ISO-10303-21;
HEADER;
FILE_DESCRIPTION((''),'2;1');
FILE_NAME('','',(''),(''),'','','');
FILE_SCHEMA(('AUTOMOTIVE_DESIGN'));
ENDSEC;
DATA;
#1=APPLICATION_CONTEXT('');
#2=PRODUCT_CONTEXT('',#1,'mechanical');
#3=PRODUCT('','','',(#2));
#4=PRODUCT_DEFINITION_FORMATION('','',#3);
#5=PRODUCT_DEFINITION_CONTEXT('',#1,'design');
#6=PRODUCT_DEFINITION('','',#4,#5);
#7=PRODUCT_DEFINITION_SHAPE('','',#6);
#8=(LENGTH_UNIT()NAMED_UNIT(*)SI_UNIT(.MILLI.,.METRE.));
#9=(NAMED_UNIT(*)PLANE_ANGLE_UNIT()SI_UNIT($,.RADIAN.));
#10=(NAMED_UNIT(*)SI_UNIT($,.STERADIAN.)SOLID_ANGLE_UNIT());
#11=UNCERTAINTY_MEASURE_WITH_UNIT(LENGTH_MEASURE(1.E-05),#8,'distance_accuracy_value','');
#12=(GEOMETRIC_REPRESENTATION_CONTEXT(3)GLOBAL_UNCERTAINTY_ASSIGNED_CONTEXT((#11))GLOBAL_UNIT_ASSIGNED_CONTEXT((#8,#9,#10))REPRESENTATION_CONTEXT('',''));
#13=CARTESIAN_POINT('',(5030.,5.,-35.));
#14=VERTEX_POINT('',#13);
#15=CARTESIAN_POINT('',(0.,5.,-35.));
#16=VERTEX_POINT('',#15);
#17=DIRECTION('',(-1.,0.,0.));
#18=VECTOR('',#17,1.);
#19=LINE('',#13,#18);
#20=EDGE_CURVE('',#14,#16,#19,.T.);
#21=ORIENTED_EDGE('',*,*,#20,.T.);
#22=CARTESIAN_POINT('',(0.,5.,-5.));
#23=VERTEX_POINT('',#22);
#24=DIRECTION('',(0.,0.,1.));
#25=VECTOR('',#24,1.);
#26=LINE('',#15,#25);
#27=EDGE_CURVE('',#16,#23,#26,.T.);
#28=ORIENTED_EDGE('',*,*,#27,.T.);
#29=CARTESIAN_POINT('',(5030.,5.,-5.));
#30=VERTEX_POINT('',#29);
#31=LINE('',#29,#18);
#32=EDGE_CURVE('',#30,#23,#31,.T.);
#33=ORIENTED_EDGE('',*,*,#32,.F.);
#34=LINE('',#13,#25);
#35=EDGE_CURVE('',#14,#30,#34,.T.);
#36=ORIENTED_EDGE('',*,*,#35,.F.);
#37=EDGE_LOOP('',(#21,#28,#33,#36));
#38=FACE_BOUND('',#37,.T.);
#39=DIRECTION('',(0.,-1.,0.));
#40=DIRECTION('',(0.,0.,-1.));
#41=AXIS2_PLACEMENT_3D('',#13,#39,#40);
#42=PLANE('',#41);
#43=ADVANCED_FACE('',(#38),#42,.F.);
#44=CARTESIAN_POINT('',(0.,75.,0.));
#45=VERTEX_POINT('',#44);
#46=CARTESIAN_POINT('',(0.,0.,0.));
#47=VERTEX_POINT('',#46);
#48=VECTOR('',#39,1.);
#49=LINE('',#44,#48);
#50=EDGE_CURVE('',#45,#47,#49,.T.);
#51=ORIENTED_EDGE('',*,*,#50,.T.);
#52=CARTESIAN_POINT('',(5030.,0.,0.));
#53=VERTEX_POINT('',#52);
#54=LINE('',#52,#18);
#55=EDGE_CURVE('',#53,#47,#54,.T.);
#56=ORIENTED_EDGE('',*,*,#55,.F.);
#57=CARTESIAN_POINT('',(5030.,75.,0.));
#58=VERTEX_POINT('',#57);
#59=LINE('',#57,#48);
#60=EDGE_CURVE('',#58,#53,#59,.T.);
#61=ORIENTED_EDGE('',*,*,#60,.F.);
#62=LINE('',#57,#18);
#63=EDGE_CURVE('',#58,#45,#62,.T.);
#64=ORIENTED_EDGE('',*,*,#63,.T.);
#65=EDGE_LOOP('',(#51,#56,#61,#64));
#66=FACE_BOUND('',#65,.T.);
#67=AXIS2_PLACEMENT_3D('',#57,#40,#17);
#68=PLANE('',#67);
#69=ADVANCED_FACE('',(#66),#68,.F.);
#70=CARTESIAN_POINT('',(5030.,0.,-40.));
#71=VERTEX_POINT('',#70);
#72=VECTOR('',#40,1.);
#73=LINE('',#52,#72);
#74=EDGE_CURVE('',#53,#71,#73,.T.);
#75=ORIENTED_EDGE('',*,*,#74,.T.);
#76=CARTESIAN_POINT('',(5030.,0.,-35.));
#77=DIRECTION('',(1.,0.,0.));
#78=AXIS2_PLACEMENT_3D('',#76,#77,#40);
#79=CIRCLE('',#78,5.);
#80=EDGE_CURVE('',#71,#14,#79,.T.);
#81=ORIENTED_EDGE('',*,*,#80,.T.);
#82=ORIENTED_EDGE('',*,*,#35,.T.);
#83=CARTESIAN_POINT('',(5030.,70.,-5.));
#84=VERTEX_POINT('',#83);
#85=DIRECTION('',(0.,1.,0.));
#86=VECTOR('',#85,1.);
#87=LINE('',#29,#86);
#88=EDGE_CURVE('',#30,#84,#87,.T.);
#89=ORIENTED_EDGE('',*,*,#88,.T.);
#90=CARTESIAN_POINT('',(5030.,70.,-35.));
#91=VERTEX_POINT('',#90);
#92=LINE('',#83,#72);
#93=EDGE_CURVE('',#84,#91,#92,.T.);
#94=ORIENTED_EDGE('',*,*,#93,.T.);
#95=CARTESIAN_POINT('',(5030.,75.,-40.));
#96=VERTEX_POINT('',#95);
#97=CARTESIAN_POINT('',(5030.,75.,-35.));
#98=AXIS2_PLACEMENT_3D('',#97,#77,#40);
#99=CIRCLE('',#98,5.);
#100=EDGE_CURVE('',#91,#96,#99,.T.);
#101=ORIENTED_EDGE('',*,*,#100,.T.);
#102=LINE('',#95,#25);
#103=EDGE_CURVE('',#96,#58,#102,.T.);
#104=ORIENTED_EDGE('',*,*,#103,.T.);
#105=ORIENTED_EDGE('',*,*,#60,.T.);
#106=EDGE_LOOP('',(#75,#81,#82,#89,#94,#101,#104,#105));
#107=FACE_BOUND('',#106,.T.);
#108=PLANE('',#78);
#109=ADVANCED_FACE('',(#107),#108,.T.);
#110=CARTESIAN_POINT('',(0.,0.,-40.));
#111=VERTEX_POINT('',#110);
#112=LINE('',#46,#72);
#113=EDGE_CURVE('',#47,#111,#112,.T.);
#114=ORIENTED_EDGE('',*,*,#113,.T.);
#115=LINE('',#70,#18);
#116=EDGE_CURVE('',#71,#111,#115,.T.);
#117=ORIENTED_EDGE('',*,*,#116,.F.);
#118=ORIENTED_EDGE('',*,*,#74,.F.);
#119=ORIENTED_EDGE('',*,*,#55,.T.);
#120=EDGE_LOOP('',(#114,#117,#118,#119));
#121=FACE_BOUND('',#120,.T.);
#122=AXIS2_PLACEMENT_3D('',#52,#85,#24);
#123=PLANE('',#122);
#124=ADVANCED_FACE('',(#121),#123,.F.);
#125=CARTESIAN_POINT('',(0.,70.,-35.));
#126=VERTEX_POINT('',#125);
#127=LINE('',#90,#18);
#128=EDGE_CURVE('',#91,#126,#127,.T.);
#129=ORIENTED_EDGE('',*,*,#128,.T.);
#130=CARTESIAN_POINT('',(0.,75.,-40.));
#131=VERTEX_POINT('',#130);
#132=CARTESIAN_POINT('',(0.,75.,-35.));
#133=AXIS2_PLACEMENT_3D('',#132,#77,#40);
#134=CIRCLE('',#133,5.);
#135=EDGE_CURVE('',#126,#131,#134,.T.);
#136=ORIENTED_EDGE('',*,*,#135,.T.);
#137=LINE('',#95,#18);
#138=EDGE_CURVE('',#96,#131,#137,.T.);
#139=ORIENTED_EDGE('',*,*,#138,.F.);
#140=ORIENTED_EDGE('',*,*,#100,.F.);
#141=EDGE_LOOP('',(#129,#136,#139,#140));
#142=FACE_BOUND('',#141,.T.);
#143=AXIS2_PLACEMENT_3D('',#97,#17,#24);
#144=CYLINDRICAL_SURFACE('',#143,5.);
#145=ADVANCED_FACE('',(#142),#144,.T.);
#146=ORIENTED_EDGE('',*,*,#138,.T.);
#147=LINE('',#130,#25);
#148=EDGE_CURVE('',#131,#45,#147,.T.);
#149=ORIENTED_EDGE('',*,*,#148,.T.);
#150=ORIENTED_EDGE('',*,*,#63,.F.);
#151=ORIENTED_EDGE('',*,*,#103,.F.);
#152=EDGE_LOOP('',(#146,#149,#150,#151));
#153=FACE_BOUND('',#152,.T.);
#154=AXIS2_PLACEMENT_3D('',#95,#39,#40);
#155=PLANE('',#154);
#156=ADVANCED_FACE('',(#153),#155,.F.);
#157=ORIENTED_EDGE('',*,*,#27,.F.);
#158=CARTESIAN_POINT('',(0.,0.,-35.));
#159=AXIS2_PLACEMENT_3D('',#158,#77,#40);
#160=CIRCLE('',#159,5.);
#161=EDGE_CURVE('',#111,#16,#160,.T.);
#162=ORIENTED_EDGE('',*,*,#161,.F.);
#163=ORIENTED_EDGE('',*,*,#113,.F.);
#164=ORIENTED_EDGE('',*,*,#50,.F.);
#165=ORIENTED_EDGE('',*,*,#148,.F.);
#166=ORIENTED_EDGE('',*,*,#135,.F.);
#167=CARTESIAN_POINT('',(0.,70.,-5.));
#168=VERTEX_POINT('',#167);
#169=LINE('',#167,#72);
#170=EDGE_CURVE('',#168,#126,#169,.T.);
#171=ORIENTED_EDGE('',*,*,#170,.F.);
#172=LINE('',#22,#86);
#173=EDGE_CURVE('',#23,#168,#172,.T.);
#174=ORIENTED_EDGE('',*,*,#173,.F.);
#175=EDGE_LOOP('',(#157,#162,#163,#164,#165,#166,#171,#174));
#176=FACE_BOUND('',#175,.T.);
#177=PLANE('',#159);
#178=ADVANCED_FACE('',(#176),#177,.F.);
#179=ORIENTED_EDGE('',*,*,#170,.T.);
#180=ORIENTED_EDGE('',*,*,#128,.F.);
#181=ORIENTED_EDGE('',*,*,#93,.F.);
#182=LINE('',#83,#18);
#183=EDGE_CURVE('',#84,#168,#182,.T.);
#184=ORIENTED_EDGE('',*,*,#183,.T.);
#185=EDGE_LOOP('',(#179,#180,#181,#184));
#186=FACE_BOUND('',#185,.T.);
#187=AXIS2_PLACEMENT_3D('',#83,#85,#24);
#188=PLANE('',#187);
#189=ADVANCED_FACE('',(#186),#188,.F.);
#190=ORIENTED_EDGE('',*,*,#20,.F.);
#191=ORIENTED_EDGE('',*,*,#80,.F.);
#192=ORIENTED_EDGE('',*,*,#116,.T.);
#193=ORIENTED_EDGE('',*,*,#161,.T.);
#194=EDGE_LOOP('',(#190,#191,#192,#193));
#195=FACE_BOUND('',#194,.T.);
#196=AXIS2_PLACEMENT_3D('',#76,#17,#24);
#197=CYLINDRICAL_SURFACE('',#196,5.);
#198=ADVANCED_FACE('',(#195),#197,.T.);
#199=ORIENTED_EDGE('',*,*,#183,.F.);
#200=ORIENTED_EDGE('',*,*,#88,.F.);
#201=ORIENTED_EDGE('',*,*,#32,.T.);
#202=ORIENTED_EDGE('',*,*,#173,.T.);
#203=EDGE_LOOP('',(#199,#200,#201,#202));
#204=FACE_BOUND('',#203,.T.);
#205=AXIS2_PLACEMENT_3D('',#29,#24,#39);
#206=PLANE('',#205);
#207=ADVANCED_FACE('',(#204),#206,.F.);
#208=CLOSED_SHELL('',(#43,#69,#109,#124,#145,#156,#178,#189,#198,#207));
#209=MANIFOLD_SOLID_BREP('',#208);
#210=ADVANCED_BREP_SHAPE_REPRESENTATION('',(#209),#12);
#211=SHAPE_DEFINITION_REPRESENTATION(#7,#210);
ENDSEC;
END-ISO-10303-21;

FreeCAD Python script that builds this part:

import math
import FreeCAD as App
import Part
import Sketcher

V = App.Vector
Q = App.Units.Quantity

doc = App.newDocument("Part")
body = doc.addObject("PartDesign::Body", "Body")

sketch1 = doc.addObject("Sketcher::SketchObject", "Sketch")
body.addObject(sketch1)
sketch1.AttachmentSupport = (doc.YZ_Plane, [""])
sketch1.MapMode = "FlatFace"
sketch1.addGeometry([
    Part.LineSegment(V(0, 0, 0), V(0, -40, 0)),
    Part.ArcOfCircle(Part.Circle(V(0, -35, 0), V(0, 0, 1), 5), math.radians(-90), math.radians(0)),
    Part.LineSegment(V(5, -35, 0), V(5, -5, 0)),
    Part.LineSegment(V(5, -5, 0), V(70, -5, 0)),
    Part.LineSegment(V(70, -5, 0), V(70, -35, 0)),
    Part.ArcOfCircle(Part.Circle(V(75, -35, 0), V(0, 0, 1), 5), math.radians(180), math.radians(270)),
    Part.LineSegment(V(75, -40, 0), V(75, 0, 0)),
    Part.LineSegment(V(75, 0, 0), V(0, 0, 0)),
], False)
sketch1.addConstraint([
    Sketcher.Constraint("Coincident", 0, 2, 1, 1),
    Sketcher.Constraint("Tangent", 1, 2, 2, 1),
    Sketcher.Constraint("Coincident", 2, 2, 3, 1),
    Sketcher.Constraint("Coincident", 3, 2, 4, 1),
    Sketcher.Constraint("Tangent", 4, 2, 5, 1),
    Sketcher.Constraint("Coincident", 5, 2, 6, 1),
    Sketcher.Constraint("Coincident", 6, 2, 7, 1),
    Sketcher.Constraint("Coincident", 7, 2, 0, 1),
    Sketcher.Constraint("Vertical", 0),
    Sketcher.Constraint("Vertical", 2),
    Sketcher.Constraint("Horizontal", 3),
    Sketcher.Constraint("Vertical", 4),
    Sketcher.Constraint("Vertical", 6),
    Sketcher.Constraint("Horizontal", 7),
    Sketcher.Constraint("Coincident", 7, 2, -1, 1),
    Sketcher.Constraint("Equal", 1, 5),
    Sketcher.Constraint("PointOnObject", 1, 3, -2),
    Sketcher.Constraint("Horizontal", 1, 3, 5, 3),
    Sketcher.Constraint("Radius", 1, Q("5 mm")),
    Sketcher.Constraint("DistanceX", 3, 1, 3, 2, Q("65 mm")),
    Sketcher.Constraint("DistanceX", 7, 2, 7, 1, Q("75 mm")),
    Sketcher.Constraint("DistanceY", 0, 2, 0, 1, Q("40 mm")),
    Sketcher.Constraint("DistanceY", 2, 1, 2, 2, Q("30 mm")),
])
pad1 = doc.addObject("PartDesign::Pad", "Pad")
body.addObject(pad1)
pad1.Profile = sketch1
pad1.Length = 5030

doc.recompute()
